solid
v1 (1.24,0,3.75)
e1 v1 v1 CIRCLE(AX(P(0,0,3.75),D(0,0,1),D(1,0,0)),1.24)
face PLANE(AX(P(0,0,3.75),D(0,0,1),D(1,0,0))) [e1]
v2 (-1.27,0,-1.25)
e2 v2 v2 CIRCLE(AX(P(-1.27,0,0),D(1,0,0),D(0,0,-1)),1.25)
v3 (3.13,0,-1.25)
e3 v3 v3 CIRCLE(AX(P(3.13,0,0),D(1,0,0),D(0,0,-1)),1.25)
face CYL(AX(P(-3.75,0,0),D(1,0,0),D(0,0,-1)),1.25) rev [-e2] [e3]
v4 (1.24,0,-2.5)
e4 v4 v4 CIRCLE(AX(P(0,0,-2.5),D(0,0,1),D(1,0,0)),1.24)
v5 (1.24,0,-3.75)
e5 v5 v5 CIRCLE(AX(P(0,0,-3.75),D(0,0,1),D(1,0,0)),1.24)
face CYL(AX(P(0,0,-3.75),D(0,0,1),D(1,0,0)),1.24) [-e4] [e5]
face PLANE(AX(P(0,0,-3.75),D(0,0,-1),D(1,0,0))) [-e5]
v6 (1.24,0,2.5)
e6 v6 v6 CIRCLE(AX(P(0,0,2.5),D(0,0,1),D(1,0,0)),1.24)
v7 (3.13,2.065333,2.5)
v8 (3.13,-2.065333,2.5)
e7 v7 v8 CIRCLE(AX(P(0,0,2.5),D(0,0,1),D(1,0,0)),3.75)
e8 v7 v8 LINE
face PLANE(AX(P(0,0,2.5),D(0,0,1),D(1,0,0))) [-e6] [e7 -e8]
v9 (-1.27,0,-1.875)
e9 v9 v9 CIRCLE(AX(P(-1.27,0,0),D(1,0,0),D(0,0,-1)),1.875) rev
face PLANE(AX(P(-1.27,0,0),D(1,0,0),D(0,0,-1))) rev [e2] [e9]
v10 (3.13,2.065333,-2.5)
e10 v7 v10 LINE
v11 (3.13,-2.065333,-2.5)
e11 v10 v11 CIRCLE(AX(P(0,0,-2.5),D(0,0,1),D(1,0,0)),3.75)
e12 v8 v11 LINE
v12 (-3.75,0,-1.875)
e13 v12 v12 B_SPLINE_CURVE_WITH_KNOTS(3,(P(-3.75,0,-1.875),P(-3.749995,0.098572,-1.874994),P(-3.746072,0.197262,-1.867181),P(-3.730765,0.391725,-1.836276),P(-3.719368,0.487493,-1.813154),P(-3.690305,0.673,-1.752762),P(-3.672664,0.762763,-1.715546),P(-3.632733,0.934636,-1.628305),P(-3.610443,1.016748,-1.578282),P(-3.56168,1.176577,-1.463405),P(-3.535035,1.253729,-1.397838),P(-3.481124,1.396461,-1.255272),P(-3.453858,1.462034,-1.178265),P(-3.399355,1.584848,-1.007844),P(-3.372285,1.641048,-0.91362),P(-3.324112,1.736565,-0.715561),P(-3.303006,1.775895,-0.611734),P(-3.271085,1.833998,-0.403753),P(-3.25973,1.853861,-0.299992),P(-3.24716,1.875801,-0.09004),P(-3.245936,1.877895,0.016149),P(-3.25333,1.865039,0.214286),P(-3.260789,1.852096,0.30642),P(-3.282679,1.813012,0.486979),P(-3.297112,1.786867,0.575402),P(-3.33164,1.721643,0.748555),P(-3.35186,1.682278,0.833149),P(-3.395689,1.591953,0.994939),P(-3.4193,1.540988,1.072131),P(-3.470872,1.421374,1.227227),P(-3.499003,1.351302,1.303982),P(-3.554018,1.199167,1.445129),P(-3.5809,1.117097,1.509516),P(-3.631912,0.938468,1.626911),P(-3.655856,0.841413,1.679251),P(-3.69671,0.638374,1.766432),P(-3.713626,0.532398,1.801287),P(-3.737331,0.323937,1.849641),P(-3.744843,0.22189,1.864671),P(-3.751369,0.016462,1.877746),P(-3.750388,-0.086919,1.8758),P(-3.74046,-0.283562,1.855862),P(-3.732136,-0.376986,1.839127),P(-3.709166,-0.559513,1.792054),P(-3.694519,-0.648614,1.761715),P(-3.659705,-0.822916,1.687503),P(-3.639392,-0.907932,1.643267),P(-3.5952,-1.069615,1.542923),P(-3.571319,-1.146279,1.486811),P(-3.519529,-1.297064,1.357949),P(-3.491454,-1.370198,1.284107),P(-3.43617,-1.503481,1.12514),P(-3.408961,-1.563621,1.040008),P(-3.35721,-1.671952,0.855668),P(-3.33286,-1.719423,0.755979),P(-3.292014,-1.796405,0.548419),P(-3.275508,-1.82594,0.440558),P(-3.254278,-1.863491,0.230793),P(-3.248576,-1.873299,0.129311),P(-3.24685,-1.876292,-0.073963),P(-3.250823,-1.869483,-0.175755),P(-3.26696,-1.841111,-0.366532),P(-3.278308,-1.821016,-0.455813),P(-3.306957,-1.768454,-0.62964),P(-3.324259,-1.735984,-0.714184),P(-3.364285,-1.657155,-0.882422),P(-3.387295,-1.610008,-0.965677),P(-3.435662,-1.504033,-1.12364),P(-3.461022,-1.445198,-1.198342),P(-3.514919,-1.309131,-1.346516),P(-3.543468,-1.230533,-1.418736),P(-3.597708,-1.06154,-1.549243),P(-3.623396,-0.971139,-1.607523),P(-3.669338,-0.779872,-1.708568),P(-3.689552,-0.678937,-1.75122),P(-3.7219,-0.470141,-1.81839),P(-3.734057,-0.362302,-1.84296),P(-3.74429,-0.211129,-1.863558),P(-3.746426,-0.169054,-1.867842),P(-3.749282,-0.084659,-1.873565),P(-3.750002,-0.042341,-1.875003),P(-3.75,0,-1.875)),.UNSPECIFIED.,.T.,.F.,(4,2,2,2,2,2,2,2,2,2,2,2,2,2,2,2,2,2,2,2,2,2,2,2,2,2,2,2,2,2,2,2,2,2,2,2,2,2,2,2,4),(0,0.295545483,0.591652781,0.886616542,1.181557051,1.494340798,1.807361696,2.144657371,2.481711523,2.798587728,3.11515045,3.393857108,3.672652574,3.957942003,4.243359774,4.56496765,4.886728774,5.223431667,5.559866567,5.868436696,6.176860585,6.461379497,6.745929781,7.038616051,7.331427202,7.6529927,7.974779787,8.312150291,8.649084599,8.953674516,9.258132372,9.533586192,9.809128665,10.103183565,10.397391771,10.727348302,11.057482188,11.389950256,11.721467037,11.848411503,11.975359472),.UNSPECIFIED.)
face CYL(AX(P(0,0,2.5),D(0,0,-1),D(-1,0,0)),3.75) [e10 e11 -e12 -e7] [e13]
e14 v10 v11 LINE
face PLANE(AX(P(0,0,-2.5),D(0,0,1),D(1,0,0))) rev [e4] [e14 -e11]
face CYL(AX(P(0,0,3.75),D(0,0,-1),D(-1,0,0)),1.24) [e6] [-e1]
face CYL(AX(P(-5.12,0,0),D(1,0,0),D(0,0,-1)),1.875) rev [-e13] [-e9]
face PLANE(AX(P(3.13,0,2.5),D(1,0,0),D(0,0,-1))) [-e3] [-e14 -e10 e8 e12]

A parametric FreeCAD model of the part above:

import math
import FreeCAD as App
import Part
import Sketcher
Q = App.Units.Quantity

doc = App.newDocument("Part")
body = doc.addObject("PartDesign::Body", "Body")

sketch1 = body.newObject("Sketcher::SketchObject", "Sketch")
sketch1.AttachmentSupport = (doc.getObject("XY_Plane"), [""])
sketch1.MapMode = "FlatFace"
sketch1.addGeometry([
    Part.LineSegment(App.Vector(3.1, -2.1, 0), App.Vector(3.1, 2.1, 0)),
    Part.ArcOfCircle(Part.Circle(App.Vector(0, 0, 0), App.Vector(0, 0, 1), 3.8), math.radians(33), math.radians(327)),
], False)
sketch1.addConstraint([
    Sketcher.Constraint("Coincident", 0, 1, 1, 2),
    Sketcher.Constraint("Coincident", 1, 1, 0, 2),
    Sketcher.Constraint("Vertical", 0),
    Sketcher.Constraint("Coincident", 1, 3, -1, 1),
    Sketcher.Constraint("Radius", 1, Q("3.75 mm")),
    Sketcher.Constraint("DistanceX", -1, 1, 0, 1, Q("3.13 mm")),
])
pad1 = body.newObject("PartDesign::Pad", "Pad")
pad1.Profile = sketch1
pad1.Length = 5
pad1.Midplane = True

sketch2 = body.newObject("Sketcher::SketchObject", "Sketch001")
sketch2.AttachmentSupport = (doc.getObject("XY_Plane"), [""])
sketch2.MapMode = "FlatFace"
sketch2.AttachmentOffset = App.Placement(App.Vector(0, 0, 2.5), App.Rotation())
sketch2.addGeometry(Part.Circle(App.Vector(0, 0, 0), App.Vector(0, 0, 1), 1.2), False)
sketch2.addConstraint([
    Sketcher.Constraint("Coincident", 0, 3, -1, 1),
    Sketcher.Constraint("Diameter", 0, Q("2.48 mm")),
])
pad2 = body.newObject("PartDesign::Pad", "Pad001")
pad2.Profile = sketch2
pad2.Length = 1.25
doc.recompute()

mirrored = body.newObject("PartDesign::Mirrored", "Mirrored")
mirrored.Originals = [pad2]
mirrored.MirrorPlane = (doc.getObject("XY_Plane"), [""])
body.Tip = mirrored

sketch3 = body.newObject("Sketcher::SketchObject", "Sketch002")
sketch3.AttachmentSupport = (doc.getObject("YZ_Plane"), [""])
sketch3.MapMode = "FlatFace"
sketch3.AttachmentOffset = App.Placement(App.Vector(0, 0, 3.13), App.Rotation())
sketch3.addGeometry(Part.Circle(App.Vector(0, 0, 0), App.Vector(0, 0, 1), 1.2), False)
sketch3.addConstraint([
    Sketcher.Constraint("Coincident", 0, 3, -1, 1),
    Sketcher.Constraint("Diameter", 0, Q("2.5 mm")),
])
pocket1 = body.newObject("PartDesign::Pocket", "Pocket")
pocket1.Profile = sketch3
pocket1.Type = "ThroughAll"

sketch4 = body.newObject("Sketcher::SketchObject", "Sketch003")
sketch4.AttachmentSupport = (doc.getObject("YZ_Plane"), [""])
sketch4.MapMode = "FlatFace"
sketch4.AttachmentOffset = App.Placement(App.Vector(0, 0, 3.13), App.Rotation())
sketch4.addGeometry(Part.Circle(App.Vector(0, 0, 0), App.Vector(0, 0, 1), 1.9), False)
sketch4.addConstraint([
    Sketcher.Constraint("Coincident", 0, 3, -1, 1),
    Sketcher.Constraint("Diameter", 0, Q("3.75 mm")),
])
pocket2 = body.newObject("PartDesign::Pocket", "Pocket001")
pocket2.Profile = sketch4
pocket2.Length = 8.25

sketch5 = body.newObject("Sketcher::SketchObject", "Sketch004")
sketch5.AttachmentSupport = (doc.getObject("YZ_Plane"), [""])
sketch5.MapMode = "FlatFace"
sketch5.AttachmentOffset = App.Placement(App.Vector(0, 0, 3.13), App.Rotation())
sketch5.addGeometry(Part.Circle(App.Vector(0, 0, 0), App.Vector(0, 0, 1), 1.9), False)
sketch5.addConstraint([
    Sketcher.Constraint("Coincident", 0, 3, -1, 1),
    Sketcher.Constraint("Diameter", 0, Q("3.75 mm")),
])
pad3 = body.newObject("PartDesign::Pad", "Pad002")
pad3.Profile = sketch5
pad3.Length = 4.4
pad3.Reversed = True

sketch6 = body.newObject("Sketcher::SketchObject", "Sketch005")
sketch6.AttachmentSupport = (doc.getObject("YZ_Plane"), [""])
sketch6.MapMode = "FlatFace"
sketch6.AttachmentOffset = App.Placement(App.Vector(0, 0, 3.13), App.Rotation())
sketch6.addGeometry(Part.Circle(App.Vector(0, 0, 0), App.Vector(0, 0, 1), 1.2), False)
sketch6.addConstraint([
    Sketcher.Constraint("Coincident", 0, 3, -1, 1),
    Sketcher.Constraint("Diameter", 0, Q("2.5 mm")),
])
pocket3 = body.newObject("PartDesign::Pocket", "Pocket002")
pocket3.Profile = sketch6
pocket3.Type = "ThroughAll"

doc.recompute()
